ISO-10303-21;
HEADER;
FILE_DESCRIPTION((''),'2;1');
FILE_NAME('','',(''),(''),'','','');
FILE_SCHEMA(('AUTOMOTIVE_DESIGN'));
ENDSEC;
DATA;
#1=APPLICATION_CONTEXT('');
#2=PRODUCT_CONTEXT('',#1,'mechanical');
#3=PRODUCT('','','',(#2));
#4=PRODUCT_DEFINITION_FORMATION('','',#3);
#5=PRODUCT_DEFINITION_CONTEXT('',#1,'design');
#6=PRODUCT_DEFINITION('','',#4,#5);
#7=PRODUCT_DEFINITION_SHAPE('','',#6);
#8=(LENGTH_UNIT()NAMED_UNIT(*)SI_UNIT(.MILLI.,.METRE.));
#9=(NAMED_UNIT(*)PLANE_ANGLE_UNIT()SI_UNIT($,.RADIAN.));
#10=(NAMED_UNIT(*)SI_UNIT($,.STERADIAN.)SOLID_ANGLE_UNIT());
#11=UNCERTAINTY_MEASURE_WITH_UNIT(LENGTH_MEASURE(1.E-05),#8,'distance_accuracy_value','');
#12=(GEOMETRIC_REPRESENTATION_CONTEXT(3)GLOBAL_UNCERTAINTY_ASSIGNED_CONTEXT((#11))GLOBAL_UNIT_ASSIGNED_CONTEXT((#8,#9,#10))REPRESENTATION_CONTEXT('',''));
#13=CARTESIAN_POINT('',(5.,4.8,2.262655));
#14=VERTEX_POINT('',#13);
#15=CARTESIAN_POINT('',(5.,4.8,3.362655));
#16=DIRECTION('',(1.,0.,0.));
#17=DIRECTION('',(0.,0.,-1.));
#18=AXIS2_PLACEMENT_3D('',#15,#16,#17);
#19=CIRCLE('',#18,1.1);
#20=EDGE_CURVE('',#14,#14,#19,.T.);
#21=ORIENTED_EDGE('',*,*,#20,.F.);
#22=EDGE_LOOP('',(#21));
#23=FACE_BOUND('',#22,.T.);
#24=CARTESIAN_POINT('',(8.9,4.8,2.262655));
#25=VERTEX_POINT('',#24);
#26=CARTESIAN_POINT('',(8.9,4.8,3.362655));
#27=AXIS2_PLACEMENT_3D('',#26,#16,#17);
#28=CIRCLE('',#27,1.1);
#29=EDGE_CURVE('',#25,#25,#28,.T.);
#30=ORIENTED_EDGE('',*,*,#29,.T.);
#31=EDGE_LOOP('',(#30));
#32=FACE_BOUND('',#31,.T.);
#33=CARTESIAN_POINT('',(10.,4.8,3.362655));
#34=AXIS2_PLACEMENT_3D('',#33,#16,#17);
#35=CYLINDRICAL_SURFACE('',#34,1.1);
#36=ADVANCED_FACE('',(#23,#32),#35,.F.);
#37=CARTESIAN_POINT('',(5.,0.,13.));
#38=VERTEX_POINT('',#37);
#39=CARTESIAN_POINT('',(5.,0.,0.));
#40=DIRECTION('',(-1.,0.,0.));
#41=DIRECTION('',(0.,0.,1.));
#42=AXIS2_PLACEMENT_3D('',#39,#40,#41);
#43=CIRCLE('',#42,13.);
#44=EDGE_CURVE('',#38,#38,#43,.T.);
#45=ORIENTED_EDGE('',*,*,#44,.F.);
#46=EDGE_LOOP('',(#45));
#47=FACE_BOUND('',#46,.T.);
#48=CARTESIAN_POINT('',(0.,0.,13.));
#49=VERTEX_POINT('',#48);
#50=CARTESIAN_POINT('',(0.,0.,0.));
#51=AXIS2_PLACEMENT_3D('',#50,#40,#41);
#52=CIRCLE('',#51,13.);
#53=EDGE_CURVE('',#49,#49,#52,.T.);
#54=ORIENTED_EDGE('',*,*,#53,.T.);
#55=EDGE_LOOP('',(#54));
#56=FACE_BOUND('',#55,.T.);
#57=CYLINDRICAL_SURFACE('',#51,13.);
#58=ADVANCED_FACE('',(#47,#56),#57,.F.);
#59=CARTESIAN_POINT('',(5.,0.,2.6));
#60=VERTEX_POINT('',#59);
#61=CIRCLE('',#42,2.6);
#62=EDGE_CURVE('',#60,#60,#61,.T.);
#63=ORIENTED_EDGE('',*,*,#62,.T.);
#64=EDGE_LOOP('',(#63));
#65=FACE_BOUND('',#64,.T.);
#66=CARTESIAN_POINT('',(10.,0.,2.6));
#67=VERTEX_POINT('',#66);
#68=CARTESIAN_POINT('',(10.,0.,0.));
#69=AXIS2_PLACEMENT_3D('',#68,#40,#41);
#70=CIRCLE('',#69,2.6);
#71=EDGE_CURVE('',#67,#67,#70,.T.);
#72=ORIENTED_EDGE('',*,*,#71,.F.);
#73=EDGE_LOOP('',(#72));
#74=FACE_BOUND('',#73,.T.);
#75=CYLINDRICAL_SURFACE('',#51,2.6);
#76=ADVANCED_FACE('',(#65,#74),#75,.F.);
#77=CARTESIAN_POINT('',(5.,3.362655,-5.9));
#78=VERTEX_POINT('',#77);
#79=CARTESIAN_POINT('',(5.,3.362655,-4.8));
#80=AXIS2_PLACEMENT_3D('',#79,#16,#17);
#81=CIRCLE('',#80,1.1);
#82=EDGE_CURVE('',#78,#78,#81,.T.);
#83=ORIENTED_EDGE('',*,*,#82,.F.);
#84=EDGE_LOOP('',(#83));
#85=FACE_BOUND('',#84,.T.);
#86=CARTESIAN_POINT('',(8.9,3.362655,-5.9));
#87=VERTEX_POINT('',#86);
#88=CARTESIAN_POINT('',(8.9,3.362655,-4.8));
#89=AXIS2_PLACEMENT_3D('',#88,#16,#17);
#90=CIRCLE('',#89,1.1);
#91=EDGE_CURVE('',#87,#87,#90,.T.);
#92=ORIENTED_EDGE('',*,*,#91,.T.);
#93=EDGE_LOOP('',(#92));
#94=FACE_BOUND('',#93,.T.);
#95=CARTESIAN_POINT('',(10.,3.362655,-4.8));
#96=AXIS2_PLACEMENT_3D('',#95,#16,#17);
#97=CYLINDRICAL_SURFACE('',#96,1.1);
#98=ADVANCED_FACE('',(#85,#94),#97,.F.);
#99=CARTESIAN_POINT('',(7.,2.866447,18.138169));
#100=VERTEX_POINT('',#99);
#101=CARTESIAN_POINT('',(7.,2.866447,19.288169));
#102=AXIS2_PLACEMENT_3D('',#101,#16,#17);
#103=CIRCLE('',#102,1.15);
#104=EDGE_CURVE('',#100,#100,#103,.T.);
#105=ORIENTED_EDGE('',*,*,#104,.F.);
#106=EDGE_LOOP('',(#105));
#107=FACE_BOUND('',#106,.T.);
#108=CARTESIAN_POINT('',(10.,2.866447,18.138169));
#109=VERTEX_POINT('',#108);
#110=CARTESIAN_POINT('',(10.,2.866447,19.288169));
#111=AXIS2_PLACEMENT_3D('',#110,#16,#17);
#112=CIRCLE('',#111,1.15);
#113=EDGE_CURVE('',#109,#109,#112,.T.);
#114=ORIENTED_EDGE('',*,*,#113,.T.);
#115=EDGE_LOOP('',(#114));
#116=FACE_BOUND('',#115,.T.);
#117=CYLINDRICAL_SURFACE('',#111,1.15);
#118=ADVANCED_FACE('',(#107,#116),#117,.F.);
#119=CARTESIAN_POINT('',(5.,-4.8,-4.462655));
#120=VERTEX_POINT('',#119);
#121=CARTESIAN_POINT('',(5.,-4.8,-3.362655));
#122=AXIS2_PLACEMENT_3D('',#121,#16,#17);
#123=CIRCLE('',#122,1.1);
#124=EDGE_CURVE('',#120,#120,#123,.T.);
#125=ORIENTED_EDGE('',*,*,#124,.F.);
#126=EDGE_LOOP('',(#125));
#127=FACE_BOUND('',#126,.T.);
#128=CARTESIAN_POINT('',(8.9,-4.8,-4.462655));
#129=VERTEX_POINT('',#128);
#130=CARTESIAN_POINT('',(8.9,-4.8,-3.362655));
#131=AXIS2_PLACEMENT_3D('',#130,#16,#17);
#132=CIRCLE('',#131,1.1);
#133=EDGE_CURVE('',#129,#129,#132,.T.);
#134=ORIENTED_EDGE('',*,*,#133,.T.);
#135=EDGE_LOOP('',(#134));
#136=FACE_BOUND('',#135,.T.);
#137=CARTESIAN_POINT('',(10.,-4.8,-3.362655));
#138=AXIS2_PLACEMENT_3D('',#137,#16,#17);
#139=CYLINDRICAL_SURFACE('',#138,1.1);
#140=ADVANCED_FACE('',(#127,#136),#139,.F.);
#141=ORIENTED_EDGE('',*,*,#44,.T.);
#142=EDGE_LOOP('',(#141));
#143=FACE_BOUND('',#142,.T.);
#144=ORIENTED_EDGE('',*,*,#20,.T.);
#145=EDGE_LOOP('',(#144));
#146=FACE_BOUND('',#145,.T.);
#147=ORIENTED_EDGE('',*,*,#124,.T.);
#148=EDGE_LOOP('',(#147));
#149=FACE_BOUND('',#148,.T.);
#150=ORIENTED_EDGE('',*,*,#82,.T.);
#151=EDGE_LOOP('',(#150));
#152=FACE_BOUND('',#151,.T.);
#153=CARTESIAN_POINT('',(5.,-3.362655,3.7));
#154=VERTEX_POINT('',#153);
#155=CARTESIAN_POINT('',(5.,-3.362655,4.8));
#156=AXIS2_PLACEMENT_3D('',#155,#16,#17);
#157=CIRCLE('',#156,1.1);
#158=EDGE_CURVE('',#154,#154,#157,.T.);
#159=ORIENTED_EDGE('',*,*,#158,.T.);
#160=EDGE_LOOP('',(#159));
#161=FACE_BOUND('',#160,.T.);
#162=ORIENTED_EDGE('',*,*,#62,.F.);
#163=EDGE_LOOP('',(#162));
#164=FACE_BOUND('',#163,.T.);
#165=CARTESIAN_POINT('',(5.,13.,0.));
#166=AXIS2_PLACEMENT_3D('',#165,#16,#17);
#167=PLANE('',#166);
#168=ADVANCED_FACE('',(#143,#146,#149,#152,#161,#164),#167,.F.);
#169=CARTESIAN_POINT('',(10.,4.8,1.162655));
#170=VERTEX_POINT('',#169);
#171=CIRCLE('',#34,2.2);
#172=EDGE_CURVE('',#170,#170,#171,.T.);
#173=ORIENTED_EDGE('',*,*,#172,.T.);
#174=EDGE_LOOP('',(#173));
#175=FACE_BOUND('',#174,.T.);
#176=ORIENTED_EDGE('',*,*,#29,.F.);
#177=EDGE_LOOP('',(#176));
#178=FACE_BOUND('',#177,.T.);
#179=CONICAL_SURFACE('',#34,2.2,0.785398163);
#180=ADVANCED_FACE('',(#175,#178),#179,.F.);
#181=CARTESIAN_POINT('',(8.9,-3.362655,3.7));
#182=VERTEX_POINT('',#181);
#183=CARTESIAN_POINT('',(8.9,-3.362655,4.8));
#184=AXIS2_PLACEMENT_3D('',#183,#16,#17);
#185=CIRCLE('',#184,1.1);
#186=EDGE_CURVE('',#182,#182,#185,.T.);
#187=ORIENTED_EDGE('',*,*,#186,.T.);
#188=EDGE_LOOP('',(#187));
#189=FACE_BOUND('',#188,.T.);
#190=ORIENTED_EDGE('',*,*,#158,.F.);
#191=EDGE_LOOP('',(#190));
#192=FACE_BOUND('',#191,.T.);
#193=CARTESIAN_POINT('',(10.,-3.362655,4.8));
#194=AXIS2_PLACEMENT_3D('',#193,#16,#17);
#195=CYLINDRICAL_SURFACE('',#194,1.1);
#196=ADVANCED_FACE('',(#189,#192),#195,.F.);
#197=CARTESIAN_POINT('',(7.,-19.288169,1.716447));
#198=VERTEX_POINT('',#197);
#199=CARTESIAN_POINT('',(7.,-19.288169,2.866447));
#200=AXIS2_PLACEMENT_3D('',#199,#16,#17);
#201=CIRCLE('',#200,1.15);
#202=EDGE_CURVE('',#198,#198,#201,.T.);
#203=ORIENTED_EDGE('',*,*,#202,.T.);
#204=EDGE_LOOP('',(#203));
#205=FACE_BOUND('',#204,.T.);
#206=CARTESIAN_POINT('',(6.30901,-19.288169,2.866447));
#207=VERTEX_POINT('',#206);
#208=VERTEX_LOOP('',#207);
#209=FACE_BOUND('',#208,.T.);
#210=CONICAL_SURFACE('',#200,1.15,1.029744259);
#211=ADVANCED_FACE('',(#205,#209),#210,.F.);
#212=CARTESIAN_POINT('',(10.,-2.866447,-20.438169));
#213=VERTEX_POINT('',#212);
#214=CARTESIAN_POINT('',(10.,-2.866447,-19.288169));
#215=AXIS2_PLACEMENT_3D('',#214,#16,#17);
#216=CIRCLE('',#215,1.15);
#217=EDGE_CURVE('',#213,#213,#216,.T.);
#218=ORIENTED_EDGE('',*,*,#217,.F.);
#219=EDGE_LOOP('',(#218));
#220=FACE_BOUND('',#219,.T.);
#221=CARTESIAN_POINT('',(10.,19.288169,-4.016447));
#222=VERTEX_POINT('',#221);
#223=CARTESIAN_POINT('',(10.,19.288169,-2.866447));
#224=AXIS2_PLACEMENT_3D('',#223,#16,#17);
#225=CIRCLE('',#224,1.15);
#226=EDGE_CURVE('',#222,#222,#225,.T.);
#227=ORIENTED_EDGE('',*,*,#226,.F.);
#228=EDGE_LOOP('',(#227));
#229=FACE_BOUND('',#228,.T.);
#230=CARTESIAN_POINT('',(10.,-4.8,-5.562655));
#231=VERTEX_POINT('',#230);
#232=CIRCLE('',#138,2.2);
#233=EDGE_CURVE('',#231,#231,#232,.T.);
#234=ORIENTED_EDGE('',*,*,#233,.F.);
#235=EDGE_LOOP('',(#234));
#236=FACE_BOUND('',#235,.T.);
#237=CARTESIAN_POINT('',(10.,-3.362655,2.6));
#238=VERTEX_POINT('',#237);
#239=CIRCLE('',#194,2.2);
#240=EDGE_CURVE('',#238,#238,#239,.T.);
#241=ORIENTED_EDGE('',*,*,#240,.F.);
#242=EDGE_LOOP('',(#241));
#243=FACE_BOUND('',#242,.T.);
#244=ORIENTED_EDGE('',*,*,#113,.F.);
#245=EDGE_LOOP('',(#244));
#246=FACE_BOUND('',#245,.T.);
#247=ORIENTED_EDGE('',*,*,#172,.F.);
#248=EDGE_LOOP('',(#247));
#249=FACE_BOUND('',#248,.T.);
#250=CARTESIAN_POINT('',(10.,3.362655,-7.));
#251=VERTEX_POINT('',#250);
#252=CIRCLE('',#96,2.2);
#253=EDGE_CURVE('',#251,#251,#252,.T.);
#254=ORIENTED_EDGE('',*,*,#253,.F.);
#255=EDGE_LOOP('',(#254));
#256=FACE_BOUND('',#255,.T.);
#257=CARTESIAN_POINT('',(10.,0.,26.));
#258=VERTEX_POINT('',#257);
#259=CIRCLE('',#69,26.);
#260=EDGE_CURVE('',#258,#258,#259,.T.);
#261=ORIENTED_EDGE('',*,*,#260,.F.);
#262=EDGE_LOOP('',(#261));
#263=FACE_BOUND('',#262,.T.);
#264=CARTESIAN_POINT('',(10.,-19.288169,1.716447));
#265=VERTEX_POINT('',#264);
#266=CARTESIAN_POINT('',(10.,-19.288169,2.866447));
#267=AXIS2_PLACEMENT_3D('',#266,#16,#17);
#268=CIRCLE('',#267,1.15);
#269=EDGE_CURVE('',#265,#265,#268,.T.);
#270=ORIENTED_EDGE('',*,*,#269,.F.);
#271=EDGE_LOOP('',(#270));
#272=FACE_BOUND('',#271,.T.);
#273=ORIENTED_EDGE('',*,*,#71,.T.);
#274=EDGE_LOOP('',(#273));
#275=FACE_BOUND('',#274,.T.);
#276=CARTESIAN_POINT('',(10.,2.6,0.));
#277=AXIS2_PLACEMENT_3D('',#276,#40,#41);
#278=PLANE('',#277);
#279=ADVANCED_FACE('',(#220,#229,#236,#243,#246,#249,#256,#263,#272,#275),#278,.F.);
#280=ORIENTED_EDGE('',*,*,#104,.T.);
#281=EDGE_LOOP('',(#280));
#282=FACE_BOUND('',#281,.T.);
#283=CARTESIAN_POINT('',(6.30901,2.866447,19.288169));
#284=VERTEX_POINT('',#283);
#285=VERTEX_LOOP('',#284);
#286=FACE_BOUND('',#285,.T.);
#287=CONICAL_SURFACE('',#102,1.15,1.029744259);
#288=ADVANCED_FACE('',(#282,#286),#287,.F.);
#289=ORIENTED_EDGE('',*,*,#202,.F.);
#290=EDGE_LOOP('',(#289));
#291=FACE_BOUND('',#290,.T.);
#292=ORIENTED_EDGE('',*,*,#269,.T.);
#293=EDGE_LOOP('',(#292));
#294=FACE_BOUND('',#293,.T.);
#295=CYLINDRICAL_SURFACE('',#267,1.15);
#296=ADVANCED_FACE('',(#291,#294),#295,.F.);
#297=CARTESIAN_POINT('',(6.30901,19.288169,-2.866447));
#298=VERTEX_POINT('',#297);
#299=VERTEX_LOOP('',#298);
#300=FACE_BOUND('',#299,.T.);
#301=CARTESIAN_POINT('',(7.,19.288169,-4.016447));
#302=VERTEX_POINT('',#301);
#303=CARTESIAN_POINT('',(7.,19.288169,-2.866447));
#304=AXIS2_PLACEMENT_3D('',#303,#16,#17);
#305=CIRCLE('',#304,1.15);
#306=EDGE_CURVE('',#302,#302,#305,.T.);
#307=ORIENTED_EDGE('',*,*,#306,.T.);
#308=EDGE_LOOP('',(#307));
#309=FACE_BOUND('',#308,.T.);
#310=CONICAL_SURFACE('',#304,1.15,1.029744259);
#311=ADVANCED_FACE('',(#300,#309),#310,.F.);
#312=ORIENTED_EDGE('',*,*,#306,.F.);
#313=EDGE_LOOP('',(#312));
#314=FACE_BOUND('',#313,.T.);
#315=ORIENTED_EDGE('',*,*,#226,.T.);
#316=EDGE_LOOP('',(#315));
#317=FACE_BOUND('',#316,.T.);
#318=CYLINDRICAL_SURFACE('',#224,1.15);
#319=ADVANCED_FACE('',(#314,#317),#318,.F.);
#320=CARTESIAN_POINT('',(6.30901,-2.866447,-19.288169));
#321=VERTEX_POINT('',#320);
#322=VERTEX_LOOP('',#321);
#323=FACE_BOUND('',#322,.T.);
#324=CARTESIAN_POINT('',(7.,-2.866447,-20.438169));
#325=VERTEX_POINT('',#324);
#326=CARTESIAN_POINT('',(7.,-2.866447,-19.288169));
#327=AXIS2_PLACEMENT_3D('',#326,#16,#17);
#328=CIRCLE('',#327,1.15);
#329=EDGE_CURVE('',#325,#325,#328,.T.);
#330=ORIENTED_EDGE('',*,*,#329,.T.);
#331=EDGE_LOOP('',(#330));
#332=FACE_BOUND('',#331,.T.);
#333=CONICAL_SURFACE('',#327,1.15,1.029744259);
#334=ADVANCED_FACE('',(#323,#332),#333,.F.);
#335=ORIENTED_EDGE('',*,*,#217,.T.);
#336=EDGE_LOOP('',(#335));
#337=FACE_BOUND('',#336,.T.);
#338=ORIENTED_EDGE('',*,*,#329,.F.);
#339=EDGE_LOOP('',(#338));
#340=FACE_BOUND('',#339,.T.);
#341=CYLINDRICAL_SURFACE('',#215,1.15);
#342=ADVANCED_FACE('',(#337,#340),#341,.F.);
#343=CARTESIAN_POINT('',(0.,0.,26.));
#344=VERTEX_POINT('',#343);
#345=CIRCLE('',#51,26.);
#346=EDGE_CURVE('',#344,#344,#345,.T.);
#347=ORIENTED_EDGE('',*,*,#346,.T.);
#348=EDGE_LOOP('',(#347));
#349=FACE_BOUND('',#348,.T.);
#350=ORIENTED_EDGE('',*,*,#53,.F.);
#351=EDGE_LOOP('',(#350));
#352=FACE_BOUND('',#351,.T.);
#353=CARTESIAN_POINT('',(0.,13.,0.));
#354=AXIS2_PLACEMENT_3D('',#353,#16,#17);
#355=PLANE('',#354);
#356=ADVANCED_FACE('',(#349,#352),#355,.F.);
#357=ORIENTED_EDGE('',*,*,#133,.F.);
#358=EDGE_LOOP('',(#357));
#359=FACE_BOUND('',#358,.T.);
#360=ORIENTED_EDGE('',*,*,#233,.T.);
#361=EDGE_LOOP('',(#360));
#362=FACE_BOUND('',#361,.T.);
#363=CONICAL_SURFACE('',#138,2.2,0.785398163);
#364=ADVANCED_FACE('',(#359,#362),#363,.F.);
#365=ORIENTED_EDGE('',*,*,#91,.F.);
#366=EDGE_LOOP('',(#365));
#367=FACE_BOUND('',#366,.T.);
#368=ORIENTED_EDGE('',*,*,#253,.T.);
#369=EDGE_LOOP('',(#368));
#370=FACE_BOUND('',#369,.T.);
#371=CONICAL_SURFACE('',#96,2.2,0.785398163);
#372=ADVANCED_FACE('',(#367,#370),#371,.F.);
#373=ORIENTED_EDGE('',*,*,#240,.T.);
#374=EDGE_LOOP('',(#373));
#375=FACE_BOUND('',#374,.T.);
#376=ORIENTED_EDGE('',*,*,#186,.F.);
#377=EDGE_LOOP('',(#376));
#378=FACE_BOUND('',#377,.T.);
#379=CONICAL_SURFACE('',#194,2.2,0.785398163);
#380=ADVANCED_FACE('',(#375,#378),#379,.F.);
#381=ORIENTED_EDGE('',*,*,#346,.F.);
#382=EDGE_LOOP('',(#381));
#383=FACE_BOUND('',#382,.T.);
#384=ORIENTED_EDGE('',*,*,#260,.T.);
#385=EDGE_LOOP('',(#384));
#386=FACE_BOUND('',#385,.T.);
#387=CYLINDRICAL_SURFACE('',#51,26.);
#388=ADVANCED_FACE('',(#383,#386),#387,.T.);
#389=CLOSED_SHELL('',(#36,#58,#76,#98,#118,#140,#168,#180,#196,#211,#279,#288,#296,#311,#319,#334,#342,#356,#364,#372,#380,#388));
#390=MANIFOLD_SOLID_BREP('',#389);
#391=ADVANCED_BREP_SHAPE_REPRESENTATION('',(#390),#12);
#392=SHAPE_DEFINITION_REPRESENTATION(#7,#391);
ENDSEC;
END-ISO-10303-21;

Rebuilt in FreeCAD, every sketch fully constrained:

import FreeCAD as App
import Part
import Sketcher
Q = App.Units.Quantity

doc = App.newDocument("Part")
body = doc.addObject("PartDesign::Body", "Body")

sketch1 = doc.addObject("Sketcher::SketchObject", "Sketch")
body.addObject(sketch1)
sketch1.AttachmentSupport = (doc.XY_Plane, [""])
sketch1.MapMode = "FlatFace"
sketch1.addGeometry([
    Part.LineSegment(App.Vector(0, 26, 0), App.Vector(0, 13, 0)),
    Part.LineSegment(App.Vector(0, 13, 0), App.Vector(5, 13, 0)),
    Part.LineSegment(App.Vector(5, 13, 0), App.Vector(5, 3, 0)),
    Part.LineSegment(App.Vector(5, 3, 0), App.Vector(10, 3, 0)),
    Part.LineSegment(App.Vector(10, 3, 0), App.Vector(10, 26, 0)),
    Part.LineSegment(App.Vector(10, 26, 0), App.Vector(0, 26, 0)),
], False)
sketch1.addConstraint([
    Sketcher.Constraint("Coincident", 0, 2, 1, 1),
    Sketcher.Constraint("Coincident", 1, 2, 2, 1),
    Sketcher.Constraint("Coincident", 2, 2, 3, 1),
    Sketcher.Constraint("Coincident", 3, 2, 4, 1),
    Sketcher.Constraint("Coincident", 4, 2, 5, 1),
    Sketcher.Constraint("Coincident", 5, 2, 0, 1),
    Sketcher.Constraint("Vertical", 0),
    Sketcher.Constraint("Horizontal", 1),
    Sketcher.Constraint("Vertical", 2),
    Sketcher.Constraint("Horizontal", 3),
    Sketcher.Constraint("Vertical", 4),
    Sketcher.Constraint("Horizontal", 5),
    Sketcher.Constraint("PointOnObject", 0, 2, -2),
    Sketcher.Constraint("Equal", 1, 3),
    Sketcher.Constraint("DistanceX", 1, 1, 1, 2, Q("5 mm")),
    Sketcher.Constraint("DistanceY", 0, 2, 0, 1, Q("13 mm")),
    Sketcher.Constraint("DistanceY", 2, 2, 2, 1, Q("10.4 mm")),
    Sketcher.Constraint("DistanceY", -1, 1, 0, 2, Q("13 mm")),
])
revolution = doc.addObject("PartDesign::Revolution", "Revolution")
body.addObject(revolution)
revolution.Profile = sketch1
revolution.ReferenceAxis = (sketch1, ["H_Axis"])
revolution.Angle = 360

sketch2 = doc.addObject("Sketcher::SketchObject", "Sketch001")
body.addObject(sketch2)
sketch2.AttachmentSupport = (doc.YZ_Plane, [""])
sketch2.MapMode = "FlatFace"
sketch2.AttachmentOffset = App.Placement(App.Vector(0, 0, 10), App.Rotation())
sketch2.addGeometry(Part.Circle(App.Vector(4.8, 3.4, 0), App.Vector(0, 0, 1), 1.1), False)
sketch2.addConstraint([
    Sketcher.Constraint("Diameter", 0, Q("2.2 mm")),
    Sketcher.Constraint("DistanceX", -1, 1, 0, 3, Q("4.8 mm")),
    Sketcher.Constraint("DistanceY", -1, 1, 0, 3, Q("3.362655 mm")),
])
doc.recompute()
hole = doc.addObject("PartDesign::Hole", "Hole")
body.addObject(hole)
hole.Profile = sketch2
hole.ThreadType = "None"
hole.Diameter = 2.2
hole.DepthType = "ThroughAll"
hole.HoleCutType = "Countersink"
hole.HoleCutDiameter = 4.4
hole.HoleCutCountersinkAngle = 90
doc.recompute()

polarpattern = doc.addObject("PartDesign::PolarPattern", "PolarPattern")
body.addObject(polarpattern)
polarpattern.Originals = [hole]
polarpattern.Axis = (doc.X_Axis, [""])
polarpattern.Angle = 360
polarpattern.Occurrences = 4
body.Tip = polarpattern

sketch3 = doc.addObject("Sketcher::SketchObject", "Sketch002")
body.addObject(sketch3)
sketch3.AttachmentSupport = (doc.XZ_Plane, [""])
sketch3.MapMode = "FlatFace"
sketch3.AttachmentOffset = App.Placement(App.Vector(0, 0, 2.866447), App.Rotation())
sketch3.addGeometry([
    Part.LineSegment(App.Vector(6.3, -19.3, 0), App.Vector(10, -19.3, 0)),
    Part.LineSegment(App.Vector(10, -19.3, 0), App.Vector(10, -20.4, 0)),
    Part.LineSegment(App.Vector(10, -20.4, 0), App.Vector(7, -20.4, 0)),
    Part.LineSegment(App.Vector(7, -20.4, 0), App.Vector(6.3, -19.3, 0)),
], False)
sketch3.addGeometry(Part.LineSegment(App.Vector(10, -19.3, 0), App.Vector(6.3, -19.3, 0)), True)
sketch3.addConstraint([
    Sketcher.Constraint("Coincident", 0, 2, 1, 1),
    Sketcher.Constraint("Coincident", 1, 2, 2, 1),
    Sketcher.Constraint("Coincident", 2, 2, 3, 1),
    Sketcher.Constraint("Coincident", 3, 2, 0, 1),
    Sketcher.Constraint("Horizontal", 0),
    Sketcher.Constraint("Vertical", 1),
    Sketcher.Constraint("Horizontal", 2),
    Sketcher.Constraint("Horizontal", 4),
    Sketcher.Constraint("Coincident", 4, 1, 0, 2),
    Sketcher.Constraint("Equal", 0, 4),
    Sketcher.Constraint("DistanceX", 2, 2, 2, 1, Q("3 mm")),
    Sketcher.Constraint("Angle", 3, Q("121 deg")),
    Sketcher.Constraint("DistanceX", -1, 1, 0, 2, Q("10 mm")),
    Sketcher.Constraint("DistanceY", 1, 2, 1, 1, Q("1.15 mm")),
    Sketcher.Constraint("DistanceY", 0, 2, -1, 1, Q("19.288169 mm")),
])
groove = doc.addObject("PartDesign::Groove", "Groove")
body.addObject(groove)
groove.Profile = sketch3
groove.ReferenceAxis = (sketch3, ["Axis0"])
groove.Angle = 360
doc.recompute()

polarpattern2 = doc.addObject("PartDesign::PolarPattern", "PolarPattern001")
body.addObject(polarpattern2)
polarpattern2.Originals = [groove]
polarpattern2.Axis = (doc.X_Axis, [""])
polarpattern2.Angle = 360
polarpattern2.Occurrences = 4
body.Tip = polarpattern2

doc.recompute()
